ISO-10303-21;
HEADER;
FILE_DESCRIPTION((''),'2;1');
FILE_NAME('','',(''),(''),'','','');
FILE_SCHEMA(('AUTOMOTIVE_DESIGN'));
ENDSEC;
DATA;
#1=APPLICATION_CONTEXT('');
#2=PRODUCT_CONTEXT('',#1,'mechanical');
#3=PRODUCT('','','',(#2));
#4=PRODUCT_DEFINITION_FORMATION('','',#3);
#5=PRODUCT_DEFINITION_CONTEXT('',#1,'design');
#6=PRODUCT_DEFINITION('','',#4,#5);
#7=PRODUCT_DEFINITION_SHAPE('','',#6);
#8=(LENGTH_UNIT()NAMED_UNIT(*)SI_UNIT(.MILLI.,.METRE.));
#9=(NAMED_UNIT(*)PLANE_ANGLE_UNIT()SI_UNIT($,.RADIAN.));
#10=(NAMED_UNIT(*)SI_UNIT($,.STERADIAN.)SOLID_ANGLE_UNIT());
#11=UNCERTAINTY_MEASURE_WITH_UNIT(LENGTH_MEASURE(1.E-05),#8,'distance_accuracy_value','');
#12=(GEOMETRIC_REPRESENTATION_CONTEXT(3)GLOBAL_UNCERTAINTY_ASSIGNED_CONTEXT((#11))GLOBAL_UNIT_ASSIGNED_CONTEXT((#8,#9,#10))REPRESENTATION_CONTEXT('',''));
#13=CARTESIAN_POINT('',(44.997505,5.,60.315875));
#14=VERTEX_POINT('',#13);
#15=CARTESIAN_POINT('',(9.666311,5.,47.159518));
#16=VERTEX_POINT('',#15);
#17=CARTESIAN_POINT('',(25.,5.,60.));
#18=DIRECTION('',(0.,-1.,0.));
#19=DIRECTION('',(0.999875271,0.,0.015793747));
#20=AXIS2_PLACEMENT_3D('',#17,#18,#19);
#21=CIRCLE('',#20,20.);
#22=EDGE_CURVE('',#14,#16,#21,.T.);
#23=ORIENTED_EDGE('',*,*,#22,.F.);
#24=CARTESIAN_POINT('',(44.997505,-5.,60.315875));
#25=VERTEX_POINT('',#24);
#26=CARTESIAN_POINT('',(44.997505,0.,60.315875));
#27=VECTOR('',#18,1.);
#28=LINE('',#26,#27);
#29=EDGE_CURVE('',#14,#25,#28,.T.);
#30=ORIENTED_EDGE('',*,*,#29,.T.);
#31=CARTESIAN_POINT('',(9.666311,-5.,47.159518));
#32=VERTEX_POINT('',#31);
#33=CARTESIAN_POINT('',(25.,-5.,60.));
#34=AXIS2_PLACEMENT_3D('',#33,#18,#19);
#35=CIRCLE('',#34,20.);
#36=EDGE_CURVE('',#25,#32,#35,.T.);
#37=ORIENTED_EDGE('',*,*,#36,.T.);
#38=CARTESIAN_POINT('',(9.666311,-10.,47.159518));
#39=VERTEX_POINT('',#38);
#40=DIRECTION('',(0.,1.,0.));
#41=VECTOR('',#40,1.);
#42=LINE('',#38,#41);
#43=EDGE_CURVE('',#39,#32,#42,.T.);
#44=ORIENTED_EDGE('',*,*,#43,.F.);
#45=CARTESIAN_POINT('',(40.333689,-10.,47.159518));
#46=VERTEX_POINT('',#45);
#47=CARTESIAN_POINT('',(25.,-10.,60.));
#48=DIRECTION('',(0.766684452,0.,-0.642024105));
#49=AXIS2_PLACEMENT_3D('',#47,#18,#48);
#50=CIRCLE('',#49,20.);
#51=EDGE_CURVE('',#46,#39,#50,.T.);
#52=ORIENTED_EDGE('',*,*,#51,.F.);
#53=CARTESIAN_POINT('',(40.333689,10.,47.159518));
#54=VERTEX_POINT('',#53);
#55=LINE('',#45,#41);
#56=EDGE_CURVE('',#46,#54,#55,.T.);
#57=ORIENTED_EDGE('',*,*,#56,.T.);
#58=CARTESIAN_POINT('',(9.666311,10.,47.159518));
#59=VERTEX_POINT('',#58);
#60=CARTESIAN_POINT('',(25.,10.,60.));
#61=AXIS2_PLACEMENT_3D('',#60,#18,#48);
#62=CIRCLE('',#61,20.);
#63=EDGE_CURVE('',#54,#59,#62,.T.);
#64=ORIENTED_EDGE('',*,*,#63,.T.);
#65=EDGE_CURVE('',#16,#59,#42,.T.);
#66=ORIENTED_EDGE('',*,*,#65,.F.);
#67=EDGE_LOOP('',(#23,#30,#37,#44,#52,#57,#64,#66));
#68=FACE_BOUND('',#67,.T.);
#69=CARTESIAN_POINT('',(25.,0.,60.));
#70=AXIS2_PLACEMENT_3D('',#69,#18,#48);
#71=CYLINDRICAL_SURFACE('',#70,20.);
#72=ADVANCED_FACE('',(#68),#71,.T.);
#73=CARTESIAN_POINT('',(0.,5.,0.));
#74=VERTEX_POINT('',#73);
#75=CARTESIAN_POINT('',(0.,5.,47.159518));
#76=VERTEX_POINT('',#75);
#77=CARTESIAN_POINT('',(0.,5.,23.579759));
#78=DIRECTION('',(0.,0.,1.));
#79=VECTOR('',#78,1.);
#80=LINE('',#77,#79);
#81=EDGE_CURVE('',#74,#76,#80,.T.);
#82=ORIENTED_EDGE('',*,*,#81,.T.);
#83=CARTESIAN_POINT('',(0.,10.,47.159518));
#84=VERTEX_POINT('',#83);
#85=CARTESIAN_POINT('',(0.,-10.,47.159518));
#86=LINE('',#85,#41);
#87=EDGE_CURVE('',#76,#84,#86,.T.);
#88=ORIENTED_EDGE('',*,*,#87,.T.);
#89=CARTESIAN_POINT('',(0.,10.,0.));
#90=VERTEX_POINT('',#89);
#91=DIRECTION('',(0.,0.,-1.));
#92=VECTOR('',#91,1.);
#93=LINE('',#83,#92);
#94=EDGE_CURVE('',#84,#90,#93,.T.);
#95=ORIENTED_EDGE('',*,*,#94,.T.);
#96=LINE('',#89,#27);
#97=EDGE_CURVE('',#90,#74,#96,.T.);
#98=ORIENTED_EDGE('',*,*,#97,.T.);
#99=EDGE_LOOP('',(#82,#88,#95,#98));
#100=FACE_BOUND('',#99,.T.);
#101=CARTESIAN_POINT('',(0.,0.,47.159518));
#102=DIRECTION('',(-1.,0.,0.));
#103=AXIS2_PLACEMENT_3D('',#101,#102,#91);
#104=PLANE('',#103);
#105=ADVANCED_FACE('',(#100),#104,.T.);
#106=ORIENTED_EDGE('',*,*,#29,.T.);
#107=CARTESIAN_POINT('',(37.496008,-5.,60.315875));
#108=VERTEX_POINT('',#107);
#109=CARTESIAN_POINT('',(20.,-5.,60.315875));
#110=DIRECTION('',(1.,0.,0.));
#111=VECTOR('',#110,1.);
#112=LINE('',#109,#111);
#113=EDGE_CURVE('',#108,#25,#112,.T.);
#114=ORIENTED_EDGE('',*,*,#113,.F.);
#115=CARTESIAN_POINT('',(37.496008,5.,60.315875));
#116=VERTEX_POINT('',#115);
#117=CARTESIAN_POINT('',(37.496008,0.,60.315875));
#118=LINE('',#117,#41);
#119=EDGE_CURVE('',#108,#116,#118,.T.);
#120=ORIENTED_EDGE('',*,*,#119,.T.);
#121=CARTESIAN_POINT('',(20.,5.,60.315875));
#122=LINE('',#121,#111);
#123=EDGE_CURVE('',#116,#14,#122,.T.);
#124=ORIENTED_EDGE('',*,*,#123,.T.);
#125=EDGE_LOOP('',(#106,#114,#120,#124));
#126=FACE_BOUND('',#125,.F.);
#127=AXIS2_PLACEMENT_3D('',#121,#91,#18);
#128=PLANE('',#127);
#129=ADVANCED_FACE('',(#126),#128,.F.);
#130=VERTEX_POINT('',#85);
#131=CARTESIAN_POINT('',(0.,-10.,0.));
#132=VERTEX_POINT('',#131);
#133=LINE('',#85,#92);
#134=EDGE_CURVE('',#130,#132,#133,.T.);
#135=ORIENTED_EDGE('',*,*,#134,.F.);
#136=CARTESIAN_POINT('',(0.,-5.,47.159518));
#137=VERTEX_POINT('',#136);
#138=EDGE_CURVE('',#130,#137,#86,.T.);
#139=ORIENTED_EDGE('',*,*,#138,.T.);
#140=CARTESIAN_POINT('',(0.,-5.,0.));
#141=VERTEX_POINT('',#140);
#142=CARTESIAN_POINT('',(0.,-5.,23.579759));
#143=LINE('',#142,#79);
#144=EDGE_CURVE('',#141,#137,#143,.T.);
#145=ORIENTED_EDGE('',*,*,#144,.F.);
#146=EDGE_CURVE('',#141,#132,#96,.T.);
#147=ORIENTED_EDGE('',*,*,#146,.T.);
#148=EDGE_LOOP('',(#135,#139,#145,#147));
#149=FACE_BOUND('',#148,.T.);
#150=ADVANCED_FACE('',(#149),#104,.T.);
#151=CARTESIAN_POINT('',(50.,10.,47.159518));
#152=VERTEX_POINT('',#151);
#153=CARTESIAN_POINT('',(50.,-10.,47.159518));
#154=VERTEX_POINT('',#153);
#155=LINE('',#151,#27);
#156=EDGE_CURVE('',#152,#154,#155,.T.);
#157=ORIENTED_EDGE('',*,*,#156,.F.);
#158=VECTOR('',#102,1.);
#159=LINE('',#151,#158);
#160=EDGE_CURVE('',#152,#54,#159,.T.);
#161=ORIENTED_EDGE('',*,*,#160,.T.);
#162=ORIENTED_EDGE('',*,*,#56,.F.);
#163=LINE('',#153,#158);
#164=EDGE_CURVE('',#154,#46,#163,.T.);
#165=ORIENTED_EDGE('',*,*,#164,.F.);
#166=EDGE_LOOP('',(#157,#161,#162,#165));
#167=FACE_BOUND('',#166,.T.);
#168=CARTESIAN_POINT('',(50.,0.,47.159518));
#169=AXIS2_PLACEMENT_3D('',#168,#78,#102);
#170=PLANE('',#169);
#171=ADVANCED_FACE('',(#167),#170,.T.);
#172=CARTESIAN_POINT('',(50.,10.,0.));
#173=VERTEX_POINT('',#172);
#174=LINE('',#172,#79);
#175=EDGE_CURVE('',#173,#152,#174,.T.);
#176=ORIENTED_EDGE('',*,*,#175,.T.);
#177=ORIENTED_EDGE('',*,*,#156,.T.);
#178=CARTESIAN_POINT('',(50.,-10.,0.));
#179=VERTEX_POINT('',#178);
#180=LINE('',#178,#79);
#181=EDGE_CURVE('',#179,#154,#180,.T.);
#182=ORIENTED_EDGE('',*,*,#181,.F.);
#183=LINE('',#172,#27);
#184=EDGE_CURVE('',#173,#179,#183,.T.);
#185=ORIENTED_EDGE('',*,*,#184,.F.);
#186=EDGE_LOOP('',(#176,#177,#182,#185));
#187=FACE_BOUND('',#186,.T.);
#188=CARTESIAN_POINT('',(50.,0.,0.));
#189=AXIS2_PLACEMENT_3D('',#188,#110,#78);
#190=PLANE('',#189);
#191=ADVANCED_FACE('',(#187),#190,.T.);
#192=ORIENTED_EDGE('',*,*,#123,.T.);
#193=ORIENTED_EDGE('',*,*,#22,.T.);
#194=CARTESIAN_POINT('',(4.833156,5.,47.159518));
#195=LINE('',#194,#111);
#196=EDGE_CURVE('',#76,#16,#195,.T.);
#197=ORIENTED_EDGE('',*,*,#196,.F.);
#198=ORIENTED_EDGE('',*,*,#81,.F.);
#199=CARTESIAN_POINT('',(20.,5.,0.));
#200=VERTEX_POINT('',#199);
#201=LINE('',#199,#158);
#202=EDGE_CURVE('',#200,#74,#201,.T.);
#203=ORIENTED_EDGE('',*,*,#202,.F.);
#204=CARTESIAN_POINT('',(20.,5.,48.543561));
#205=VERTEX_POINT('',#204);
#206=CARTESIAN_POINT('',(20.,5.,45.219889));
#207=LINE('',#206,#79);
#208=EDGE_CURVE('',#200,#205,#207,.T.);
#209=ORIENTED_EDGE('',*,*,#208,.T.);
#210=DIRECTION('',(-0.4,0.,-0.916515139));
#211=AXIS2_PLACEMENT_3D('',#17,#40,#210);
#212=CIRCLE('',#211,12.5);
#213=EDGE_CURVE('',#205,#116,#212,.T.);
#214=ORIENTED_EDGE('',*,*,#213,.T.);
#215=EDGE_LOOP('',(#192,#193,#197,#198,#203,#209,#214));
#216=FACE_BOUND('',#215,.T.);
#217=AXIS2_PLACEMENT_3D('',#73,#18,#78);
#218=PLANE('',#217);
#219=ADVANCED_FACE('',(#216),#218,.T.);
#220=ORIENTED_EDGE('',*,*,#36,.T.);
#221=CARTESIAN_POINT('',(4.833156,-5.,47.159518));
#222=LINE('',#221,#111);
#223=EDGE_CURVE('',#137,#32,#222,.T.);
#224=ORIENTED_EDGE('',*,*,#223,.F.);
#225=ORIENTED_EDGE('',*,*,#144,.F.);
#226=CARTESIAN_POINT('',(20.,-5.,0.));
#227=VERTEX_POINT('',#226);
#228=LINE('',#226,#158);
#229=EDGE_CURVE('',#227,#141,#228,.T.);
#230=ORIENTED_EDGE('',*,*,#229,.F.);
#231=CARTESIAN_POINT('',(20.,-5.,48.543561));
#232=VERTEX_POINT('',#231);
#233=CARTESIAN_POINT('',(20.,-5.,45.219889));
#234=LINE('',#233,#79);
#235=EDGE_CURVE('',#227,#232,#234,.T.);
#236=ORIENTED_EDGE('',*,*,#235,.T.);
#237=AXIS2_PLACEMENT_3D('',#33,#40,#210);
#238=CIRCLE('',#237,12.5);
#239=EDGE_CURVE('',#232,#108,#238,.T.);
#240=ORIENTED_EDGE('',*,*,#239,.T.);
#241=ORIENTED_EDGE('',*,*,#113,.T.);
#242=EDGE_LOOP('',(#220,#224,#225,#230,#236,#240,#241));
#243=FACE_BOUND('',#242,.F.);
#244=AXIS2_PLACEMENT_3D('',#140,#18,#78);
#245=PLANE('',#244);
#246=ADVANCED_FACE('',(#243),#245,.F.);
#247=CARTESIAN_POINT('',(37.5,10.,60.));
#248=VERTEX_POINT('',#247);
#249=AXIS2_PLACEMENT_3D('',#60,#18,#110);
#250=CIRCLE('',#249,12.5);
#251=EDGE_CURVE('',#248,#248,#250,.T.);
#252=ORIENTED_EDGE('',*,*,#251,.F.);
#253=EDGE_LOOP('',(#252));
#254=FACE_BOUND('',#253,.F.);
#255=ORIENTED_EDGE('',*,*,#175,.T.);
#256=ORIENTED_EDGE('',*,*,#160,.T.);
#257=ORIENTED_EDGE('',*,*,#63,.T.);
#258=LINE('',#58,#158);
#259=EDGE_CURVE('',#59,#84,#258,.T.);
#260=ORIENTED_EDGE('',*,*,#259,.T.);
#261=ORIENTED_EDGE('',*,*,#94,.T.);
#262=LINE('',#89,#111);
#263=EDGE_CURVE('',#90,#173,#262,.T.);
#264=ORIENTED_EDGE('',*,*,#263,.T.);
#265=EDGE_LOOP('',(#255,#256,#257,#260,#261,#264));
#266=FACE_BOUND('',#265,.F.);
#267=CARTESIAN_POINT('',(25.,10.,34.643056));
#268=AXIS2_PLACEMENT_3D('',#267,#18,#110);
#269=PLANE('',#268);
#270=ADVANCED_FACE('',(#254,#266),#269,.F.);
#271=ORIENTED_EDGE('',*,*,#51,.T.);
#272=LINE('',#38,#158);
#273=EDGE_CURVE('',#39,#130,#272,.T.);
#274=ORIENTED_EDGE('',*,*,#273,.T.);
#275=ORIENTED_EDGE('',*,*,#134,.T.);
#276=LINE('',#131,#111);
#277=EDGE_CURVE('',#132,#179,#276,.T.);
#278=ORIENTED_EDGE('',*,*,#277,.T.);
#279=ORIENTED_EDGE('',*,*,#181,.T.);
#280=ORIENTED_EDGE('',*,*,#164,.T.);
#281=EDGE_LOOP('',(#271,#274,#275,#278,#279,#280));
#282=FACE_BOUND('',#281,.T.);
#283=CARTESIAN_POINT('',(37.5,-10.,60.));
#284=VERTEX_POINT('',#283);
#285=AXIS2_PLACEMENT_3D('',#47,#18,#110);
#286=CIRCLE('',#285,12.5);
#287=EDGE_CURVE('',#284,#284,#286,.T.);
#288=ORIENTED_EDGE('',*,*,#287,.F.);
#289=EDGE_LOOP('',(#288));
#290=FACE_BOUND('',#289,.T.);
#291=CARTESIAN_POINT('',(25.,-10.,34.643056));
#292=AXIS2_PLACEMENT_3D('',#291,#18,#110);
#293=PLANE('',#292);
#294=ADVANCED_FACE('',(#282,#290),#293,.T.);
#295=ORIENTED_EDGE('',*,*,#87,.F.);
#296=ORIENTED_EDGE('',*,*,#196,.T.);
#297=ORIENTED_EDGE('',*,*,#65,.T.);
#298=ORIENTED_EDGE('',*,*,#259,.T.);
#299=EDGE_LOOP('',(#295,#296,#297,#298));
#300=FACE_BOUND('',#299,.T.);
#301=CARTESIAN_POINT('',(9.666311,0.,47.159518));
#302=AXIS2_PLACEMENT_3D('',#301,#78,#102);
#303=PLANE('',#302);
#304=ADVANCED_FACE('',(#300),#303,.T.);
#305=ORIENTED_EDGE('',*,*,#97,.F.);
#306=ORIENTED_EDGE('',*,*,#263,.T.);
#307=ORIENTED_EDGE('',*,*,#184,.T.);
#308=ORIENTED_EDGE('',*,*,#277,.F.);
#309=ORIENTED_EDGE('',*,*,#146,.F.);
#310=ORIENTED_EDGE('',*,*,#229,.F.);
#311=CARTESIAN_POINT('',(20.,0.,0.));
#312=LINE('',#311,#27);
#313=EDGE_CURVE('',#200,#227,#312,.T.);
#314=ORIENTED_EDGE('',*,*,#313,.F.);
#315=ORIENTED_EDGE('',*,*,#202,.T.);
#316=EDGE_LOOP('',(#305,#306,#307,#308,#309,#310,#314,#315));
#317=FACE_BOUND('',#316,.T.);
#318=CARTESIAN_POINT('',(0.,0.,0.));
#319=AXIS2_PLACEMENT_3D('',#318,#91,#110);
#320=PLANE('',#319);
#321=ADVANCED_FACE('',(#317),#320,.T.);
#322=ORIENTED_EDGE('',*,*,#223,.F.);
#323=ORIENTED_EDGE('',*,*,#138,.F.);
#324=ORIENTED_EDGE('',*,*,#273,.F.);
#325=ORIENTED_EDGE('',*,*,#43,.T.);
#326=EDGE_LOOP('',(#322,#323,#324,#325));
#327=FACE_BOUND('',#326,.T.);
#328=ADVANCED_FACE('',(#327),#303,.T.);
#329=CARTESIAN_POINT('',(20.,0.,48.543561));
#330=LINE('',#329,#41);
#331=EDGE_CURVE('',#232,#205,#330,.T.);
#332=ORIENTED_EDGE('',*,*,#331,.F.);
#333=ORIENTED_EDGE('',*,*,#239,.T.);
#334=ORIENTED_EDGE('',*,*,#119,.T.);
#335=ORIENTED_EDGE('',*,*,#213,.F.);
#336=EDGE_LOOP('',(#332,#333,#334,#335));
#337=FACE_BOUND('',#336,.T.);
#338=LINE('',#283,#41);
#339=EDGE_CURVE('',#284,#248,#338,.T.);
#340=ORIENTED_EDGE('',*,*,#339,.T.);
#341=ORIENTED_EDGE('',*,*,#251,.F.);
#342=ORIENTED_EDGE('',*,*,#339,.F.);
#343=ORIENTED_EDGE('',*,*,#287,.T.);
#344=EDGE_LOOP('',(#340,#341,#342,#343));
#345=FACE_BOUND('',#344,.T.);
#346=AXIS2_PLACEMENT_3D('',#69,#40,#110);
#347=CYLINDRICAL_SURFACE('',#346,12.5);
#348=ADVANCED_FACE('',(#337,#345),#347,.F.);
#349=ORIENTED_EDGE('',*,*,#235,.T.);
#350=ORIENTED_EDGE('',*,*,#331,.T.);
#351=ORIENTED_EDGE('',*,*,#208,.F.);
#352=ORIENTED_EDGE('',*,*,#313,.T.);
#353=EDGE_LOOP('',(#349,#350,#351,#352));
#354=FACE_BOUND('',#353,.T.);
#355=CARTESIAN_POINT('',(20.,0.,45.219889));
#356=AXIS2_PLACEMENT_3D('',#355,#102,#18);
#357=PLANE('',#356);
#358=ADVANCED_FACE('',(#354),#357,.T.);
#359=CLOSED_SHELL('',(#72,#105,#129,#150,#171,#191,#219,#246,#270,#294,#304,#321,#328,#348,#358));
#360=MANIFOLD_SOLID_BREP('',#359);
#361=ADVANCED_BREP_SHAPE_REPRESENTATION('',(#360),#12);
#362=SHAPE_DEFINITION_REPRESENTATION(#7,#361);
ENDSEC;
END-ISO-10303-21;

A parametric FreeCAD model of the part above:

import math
import FreeCAD as App
import Part
import Sketcher
from FreeCAD import Vector

doc = App.newDocument("Part")
body = doc.addObject("PartDesign::Body", "Body")

# Sketch on XZ plane
sketch1 = body.newObject("Sketcher::SketchObject", "Sketch")
sketch1.AttachmentSupport = (doc.getObject("XZ_Plane"), [""])
sketch1.MapMode = "FlatFace"
sketch1.addGeometry([
    Part.LineSegment(Vector(0, 47, 0), Vector(0, 0, 0)),  # 0
    Part.LineSegment(Vector(0, 0, 0), Vector(50, 0, 0)),  # 1
    Part.LineSegment(Vector(50, 0, 0), Vector(50, 47, 0)),  # 2
    Part.LineSegment(Vector(50, 47, 0), Vector(40, 47, 0)),  # 3
    Part.ArcOfCircle(Part.Circle(Vector(25, 60, 0), Vector(0, 0, 1), 20), math.radians(-40), math.radians(220)),  # 4
    Part.LineSegment(Vector(10, 47, 0), Vector(0, 47, 0)),  # 5
    Part.Circle(Vector(25, 60, 0), Vector(0, 0, 1), 12),  # 6
], False)
sketch1.addConstraint([
    Sketcher.Constraint("Coincident", 0, 2, 1, 1),
    Sketcher.Constraint("Coincident", 1, 2, 2, 1),
    Sketcher.Constraint("Coincident", 2, 2, 3, 1),
    Sketcher.Constraint("Coincident", 3, 2, 4, 1),
    Sketcher.Constraint("Coincident", 4, 2, 5, 1),
    Sketcher.Constraint("Coincident", 5, 2, 0, 1),
    Sketcher.Constraint("Vertical", 0),
    Sketcher.Constraint("Horizontal", 1),
    Sketcher.Constraint("Vertical", 2),
    Sketcher.Constraint("Horizontal", 3),
    Sketcher.Constraint("Horizontal", 5),
    Sketcher.Constraint("Coincident", 0, 2, -1, 1),
    Sketcher.Constraint("Coincident", 6, 3, 4, 3),
    Sketcher.Constraint("Horizontal", 3, 2, 4, 2),
    Sketcher.Constraint("Equal", 3, 5),
    Sketcher.Constraint("Diameter", 6, 25.0),
    Sketcher.Constraint("Radius", 4, 20.0),
    Sketcher.Constraint("DistanceX", 1, 1, 1, 2, 50.0),
    Sketcher.Constraint("DistanceY", -1, 1, 4, 3, 60.0),
    Sketcher.Constraint("DistanceX", 3, 2, 3, 1, 9.666311),
])
pad1 = body.newObject("PartDesign::Pad", "Pad")
pad1.Profile = sketch1
pad1.Length = 20
pad1.Midplane = True

# Sketch on YZ plane
sketch2 = body.newObject("Sketcher::SketchObject", "Sketch001")
sketch2.AttachmentSupport = (doc.getObject("YZ_Plane"), [""])
sketch2.MapMode = "FlatFace"
sketch2.addGeometry([
    Part.LineSegment(Vector(5, 90, 0), Vector(5, 0, 0)),
    Part.LineSegment(Vector(5, 0, 0), Vector(-5, 0, 0)),
    Part.LineSegment(Vector(-5, 0, 0), Vector(-5, 90, 0)),
    Part.LineSegment(Vector(-5, 90, 0), Vector(5, 90, 0)),
], False)
sketch2.addConstraint([
    Sketcher.Constraint("Coincident", 0, 2, 1, 1),
    Sketcher.Constraint("Coincident", 1, 2, 2, 1),
    Sketcher.Constraint("Coincident", 2, 2, 3, 1),
    Sketcher.Constraint("Coincident", 3, 2, 0, 1),
    Sketcher.Constraint("Vertical", 0),
    Sketcher.Constraint("Horizontal", 1),
    Sketcher.Constraint("Vertical", 2),
    Sketcher.Constraint("Horizontal", 3),
    Sketcher.Constraint("Symmetric", 0, 2, 1, 2, -1, 1),
    Sketcher.Constraint("DistanceX", 1, 2, 1, 1, 10.0),
    Sketcher.Constraint("DistanceY", 0, 2, 0, 1, 90.439778),
])
pocket1 = body.newObject("PartDesign::Pocket", "Pocket")
pocket1.Profile = sketch2
pocket1.Length = 40
pocket1.Midplane = True

# Sketch on YZ plane
sketch3 = body.newObject("Sketcher::SketchObject", "Sketch002")
sketch3.AttachmentSupport = (doc.getObject("YZ_Plane"), [""])
sketch3.MapMode = "FlatFace"
sketch3.AttachmentOffset = App.Placement(Vector(0, 0, 20), App.Rotation())
sketch3.addGeometry([
    Part.LineSegment(Vector(-5, 85, 0), Vector(5, 81, 0)),
    Part.LineSegment(Vector(5, 81, 0), Vector(5, 60, 0)),
    Part.LineSegment(Vector(5, 60, 0), Vector(-5, 60, 0)),
    Part.LineSegment(Vector(-5, 60, 0), Vector(-5, 85, 0)),
], False)
sketch3.addConstraint([
    Sketcher.Constraint("Coincident", 0, 2, 1, 1),
    Sketcher.Constraint("Coincident", 1, 2, 2, 1),
    Sketcher.Constraint("Coincident", 2, 2, 3, 1),
    Sketcher.Constraint("Coincident", 3, 2, 0, 1),
    Sketcher.Constraint("Vertical", 1),
    Sketcher.Constraint("Horizontal", 2),
    Sketcher.Constraint("Vertical", 3),
    Sketcher.Constraint("DistanceX", 2, 2, 2, 1, 10.0),
    Sketcher.Constraint("DistanceX", -1, 1, 0, 2, 5.0),
    Sketcher.Constraint("DistanceY", 1, 2, 1, 1, 21.144095),
    Sketcher.Constraint("DistanceY", 3, 1, 3, 2, 24.319474),
    Sketcher.Constraint("DistanceY", -1, 1, 0, 2, 81.45997),
])
pocket2 = body.newObject("PartDesign::Pocket", "Pocket001")
pocket2.Profile = sketch3
pocket2.Type = "ThroughAll"
pocket2.Reversed = True

doc.recompute()
